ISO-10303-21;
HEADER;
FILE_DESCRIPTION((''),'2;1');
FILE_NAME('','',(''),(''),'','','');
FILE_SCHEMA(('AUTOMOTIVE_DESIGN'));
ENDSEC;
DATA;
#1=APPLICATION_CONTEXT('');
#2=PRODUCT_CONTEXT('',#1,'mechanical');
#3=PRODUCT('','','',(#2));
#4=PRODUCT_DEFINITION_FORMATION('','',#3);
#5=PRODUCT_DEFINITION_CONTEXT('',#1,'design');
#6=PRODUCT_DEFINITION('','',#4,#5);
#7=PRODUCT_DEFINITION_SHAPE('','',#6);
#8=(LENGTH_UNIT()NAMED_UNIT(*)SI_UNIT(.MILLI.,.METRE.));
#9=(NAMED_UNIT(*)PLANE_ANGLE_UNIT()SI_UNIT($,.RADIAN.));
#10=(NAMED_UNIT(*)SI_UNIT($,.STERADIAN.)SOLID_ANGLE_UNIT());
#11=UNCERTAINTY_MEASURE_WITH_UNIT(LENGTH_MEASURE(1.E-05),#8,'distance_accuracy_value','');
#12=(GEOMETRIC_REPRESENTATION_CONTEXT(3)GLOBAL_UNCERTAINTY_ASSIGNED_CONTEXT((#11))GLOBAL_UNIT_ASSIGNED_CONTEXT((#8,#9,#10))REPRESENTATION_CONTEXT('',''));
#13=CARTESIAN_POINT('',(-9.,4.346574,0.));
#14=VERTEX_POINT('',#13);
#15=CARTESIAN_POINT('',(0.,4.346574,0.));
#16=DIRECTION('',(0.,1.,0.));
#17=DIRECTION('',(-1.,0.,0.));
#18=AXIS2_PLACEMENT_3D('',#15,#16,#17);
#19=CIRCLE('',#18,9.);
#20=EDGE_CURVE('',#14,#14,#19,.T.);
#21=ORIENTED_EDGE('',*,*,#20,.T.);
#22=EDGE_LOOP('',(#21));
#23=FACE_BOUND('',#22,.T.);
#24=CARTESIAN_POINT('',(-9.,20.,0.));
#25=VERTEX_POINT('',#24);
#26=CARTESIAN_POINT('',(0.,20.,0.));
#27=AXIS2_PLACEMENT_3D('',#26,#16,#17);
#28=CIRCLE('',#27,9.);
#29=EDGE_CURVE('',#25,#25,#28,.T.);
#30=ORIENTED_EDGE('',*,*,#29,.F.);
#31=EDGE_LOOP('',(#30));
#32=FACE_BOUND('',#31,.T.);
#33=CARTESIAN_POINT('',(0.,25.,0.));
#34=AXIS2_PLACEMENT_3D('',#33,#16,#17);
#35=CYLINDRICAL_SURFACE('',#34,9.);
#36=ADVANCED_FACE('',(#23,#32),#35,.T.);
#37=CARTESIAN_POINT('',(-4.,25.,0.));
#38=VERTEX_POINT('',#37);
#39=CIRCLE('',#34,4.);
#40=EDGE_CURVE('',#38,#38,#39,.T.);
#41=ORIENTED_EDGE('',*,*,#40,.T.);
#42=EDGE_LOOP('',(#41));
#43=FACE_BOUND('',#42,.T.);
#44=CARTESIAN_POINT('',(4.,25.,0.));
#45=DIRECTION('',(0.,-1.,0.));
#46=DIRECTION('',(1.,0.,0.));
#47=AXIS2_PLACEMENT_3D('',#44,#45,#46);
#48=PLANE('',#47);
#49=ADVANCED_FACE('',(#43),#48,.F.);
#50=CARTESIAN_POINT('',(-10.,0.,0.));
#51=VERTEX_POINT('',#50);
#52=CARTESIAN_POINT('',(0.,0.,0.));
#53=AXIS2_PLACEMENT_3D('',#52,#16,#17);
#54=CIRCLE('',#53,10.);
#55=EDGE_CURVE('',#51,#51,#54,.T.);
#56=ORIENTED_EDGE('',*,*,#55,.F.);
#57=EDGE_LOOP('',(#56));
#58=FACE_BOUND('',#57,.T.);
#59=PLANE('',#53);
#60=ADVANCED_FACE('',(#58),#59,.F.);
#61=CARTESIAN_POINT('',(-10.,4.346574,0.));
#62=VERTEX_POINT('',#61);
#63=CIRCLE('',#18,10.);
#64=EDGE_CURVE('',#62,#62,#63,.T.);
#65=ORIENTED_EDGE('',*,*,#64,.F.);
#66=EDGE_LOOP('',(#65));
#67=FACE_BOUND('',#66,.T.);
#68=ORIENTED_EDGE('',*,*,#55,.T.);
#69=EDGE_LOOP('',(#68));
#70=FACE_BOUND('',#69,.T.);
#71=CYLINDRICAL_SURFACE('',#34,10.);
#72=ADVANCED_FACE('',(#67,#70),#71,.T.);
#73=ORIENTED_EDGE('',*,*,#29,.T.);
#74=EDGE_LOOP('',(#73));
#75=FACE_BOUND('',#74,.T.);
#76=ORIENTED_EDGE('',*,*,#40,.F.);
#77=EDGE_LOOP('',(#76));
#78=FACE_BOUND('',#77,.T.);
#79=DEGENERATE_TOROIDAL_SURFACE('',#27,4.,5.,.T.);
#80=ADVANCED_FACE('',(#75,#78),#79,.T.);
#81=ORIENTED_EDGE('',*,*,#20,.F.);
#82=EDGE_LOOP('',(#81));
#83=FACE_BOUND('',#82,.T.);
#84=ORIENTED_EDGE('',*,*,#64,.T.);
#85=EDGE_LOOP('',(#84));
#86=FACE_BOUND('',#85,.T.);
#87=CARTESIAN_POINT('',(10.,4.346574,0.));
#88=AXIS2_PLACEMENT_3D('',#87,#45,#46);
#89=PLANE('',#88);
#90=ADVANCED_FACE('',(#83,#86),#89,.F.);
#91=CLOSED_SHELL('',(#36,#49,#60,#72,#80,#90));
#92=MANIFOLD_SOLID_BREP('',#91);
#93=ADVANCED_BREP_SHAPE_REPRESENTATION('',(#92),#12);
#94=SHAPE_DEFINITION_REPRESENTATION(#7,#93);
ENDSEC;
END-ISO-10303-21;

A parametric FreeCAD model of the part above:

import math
import FreeCAD as App
import Part
import Sketcher

V = App.Vector
Q = App.Units.Quantity

doc = App.newDocument("Part")
body = doc.addObject("PartDesign::Body", "Body")

sketch1 = body.newObject("Sketcher::SketchObject", "Sketch")
sketch1.AttachmentSupport = (doc.getObject("XY_Plane"), [""])
sketch1.MapMode = "FlatFace"
sketch1.addGeometry(Part.LineSegment(V(0, 0, 0), V(10, 0, 0)), False)
sketch1.addGeometry(Part.LineSegment(V(10, 0, 0), V(10, 4.3, 0)), False)
sketch1.addGeometry(Part.LineSegment(V(10, 4.3, 0), V(9, 4.3, 0)), False)
sketch1.addGeometry(Part.LineSegment(V(9, 4.3, 0), V(9, 20, 0)), False)
sketch1.addGeometry(Part.ArcOfCircle(Part.Circle(V(4, 20, 0), V(0, 0, 1), 5), math.radians(0), math.radians(90)), False)
sketch1.addGeometry(Part.LineSegment(V(4, 25, 0), V(0, 25, 0)), False)
sketch1.addGeometry(Part.LineSegment(V(0, 25, 0), V(0, 0, 0)), False)
sketch1.addConstraint(Sketcher.Constraint("Coincident", 0, 2, 1, 1))
sketch1.addConstraint(Sketcher.Constraint("Coincident", 1, 2, 2, 1))
sketch1.addConstraint(Sketcher.Constraint("Coincident", 2, 2, 3, 1))
sketch1.addConstraint(Sketcher.Constraint("Tangent", 3, 2, 4, 1))
sketch1.addConstraint(Sketcher.Constraint("Tangent", 4, 2, 5, 1))
sketch1.addConstraint(Sketcher.Constraint("Coincident", 5, 2, 6, 1))
sketch1.addConstraint(Sketcher.Constraint("Coincident", 6, 2, 0, 1))
sketch1.addConstraint(Sketcher.Constraint("Horizontal", 0))
sketch1.addConstraint(Sketcher.Constraint("Vertical", 1))
sketch1.addConstraint(Sketcher.Constraint("Horizontal", 2))
sketch1.addConstraint(Sketcher.Constraint("Vertical", 3))
sketch1.addConstraint(Sketcher.Constraint("Horizontal", 5))
sketch1.addConstraint(Sketcher.Constraint("Vertical", 6))
sketch1.addConstraint(Sketcher.Constraint("Coincident", 6, 2, -1, 1))
sketch1.addConstraint(Sketcher.Constraint("Radius", 4, Q("5 mm")))
sketch1.addConstraint(Sketcher.Constraint("DistanceX", 0, 1, 0, 2, Q("10 mm")))
sketch1.addConstraint(Sketcher.Constraint("DistanceX", 2, 2, 2, 1, Q("1 mm")))
sketch1.addConstraint(Sketcher.Constraint("DistanceY", 6, 2, 6, 1, Q("25 mm")))
sketch1.addConstraint(Sketcher.Constraint("DistanceY", 1, 1, 1, 2, Q("4.346574 mm")))
revolution = body.newObject("PartDesign::Revolution", "Revolution")
revolution.Profile = sketch1
revolution.ReferenceAxis = (sketch1, ["V_Axis"])
revolution.Angle = 360

doc.recompute()
